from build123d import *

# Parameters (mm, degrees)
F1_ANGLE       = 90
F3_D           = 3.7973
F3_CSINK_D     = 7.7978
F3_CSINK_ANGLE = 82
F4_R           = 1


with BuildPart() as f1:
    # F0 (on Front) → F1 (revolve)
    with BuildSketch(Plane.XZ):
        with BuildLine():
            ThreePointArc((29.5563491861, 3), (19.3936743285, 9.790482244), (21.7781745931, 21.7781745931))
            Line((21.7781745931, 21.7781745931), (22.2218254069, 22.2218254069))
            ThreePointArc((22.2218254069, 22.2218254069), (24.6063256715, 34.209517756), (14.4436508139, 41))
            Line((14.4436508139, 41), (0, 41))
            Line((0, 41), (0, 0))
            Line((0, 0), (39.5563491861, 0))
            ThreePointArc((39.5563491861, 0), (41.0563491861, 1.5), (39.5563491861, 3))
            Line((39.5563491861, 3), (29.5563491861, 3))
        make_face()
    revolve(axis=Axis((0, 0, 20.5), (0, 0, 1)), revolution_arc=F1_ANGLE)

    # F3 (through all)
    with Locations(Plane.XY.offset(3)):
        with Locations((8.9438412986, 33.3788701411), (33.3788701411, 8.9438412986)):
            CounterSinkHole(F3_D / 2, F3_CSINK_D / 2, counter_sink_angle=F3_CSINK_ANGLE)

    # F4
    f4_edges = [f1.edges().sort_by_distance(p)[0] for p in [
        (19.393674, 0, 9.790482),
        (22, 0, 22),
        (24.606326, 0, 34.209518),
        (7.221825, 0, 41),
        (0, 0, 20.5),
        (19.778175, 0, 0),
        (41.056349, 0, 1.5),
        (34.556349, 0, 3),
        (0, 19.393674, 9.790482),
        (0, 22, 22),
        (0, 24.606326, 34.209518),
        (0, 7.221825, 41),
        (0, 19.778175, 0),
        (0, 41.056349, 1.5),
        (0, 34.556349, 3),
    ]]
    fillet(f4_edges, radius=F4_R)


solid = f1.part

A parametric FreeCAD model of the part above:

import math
import FreeCAD as App
import Part
import Sketcher
from FreeCAD import Vector
Q = App.Units.Quantity


def edges_at(feature, points):
    """Names of the edges that pass closest to the given points."""
    edges = feature.Shape.Edges
    near = lambda p: min(range(len(edges)), key=lambda i: edges[i].distToShape(Part.Vertex(*p))[0])
    return sorted({f"Edge{near(p) + 1}" for p in points})

doc = App.newDocument("Part")
body = doc.addObject("PartDesign::Body", "Body")

# Sketch on XZ plane
sketch1 = body.newObject("Sketcher::SketchObject", "Sketch")
sketch1.AttachmentSupport = (doc.getObject("XZ_Plane"), [""])
sketch1.MapMode = "FlatFace"
sketch1.addGeometry(Part.ArcOfCircle(Part.Circle(Vector(29.6, 14, 0), Vector(0, 0, 1), 11), math.radians(135), math.radians(270)), False)
sketch1.addGeometry(Part.LineSegment(Vector(21.8, 21.8, 0), Vector(22.2, 22.2, 0)), False)
sketch1.addGeometry(Part.ArcOfCircle(Part.Circle(Vector(14.4, 30, 0), Vector(0, 0, 1), 11), math.radians(-45), math.radians(90)), False)
sketch1.addGeometry(Part.LineSegment(Vector(14.4, 41, 0), Vector(0, 41, 0)), False)
sketch1.addGeometry(Part.LineSegment(Vector(0, 41, 0), Vector(0, 0, 0)), False)
sketch1.addGeometry(Part.LineSegment(Vector(0, 0, 0), Vector(39.6, 0, 0)), False)
sketch1.addGeometry(Part.ArcOfCircle(Part.Circle(Vector(39.6, 1.5, 0), Vector(0, 0, 1), 1.5), math.radians(-90), math.radians(90)), False)
sketch1.addGeometry(Part.LineSegment(Vector(39.6, 3, 0), Vector(29.6, 3, 0)), False)
sketch1.addConstraint(Sketcher.Constraint("Tangent", 0, 1, 1, 1))
sketch1.addConstraint(Sketcher.Constraint("Tangent", 1, 2, 2, 1))
sketch1.addConstraint(Sketcher.Constraint("Tangent", 2, 2, 3, 1))
sketch1.addConstraint(Sketcher.Constraint("Coincident", 3, 2, 4, 1))
sketch1.addConstraint(Sketcher.Constraint("Coincident", 4, 2, 5, 1))
sketch1.addConstraint(Sketcher.Constraint("Tangent", 5, 2, 6, 1))
sketch1.addConstraint(Sketcher.Constraint("Tangent", 6, 2, 7, 1))
sketch1.addConstraint(Sketcher.Constraint("Tangent", 7, 2, 0, 2))
sketch1.addConstraint(Sketcher.Constraint("Horizontal", 3))
sketch1.addConstraint(Sketcher.Constraint("Vertical", 4))
sketch1.addConstraint(Sketcher.Constraint("Horizontal", 5))
sketch1.addConstraint(Sketcher.Constraint("Horizontal", 7))
sketch1.addConstraint(Sketcher.Constraint("Coincident", 4, 2, -1, 1))
sketch1.addConstraint(Sketcher.Constraint("Equal", 0, 2))
sketch1.addConstraint(Sketcher.Constraint("Radius", 0, 11.0))
sketch1.addConstraint(Sketcher.Constraint("Radius", 6, 1.5))
sketch1.addConstraint(Sketcher.Constraint("DistanceX", 7, 2, 7, 1, 10.0))
sketch1.addConstraint(Sketcher.Constraint("DistanceY", 4, 2, 4, 1, 41.0))
sketch1.addConstraint(Sketcher.Constraint("Angle", 1, Q("45 deg")))
sketch1.addConstraint(Sketcher.Constraint("DistanceX", 3, 2, 3, 1, 14.443651))
revolution = body.newObject("PartDesign::Revolution", "Revolution")
revolution.Profile = sketch1
revolution.ReferenceAxis = (sketch1, ["V_Axis"])
revolution.Angle = 90

# Sketch on XY plane
sketch2 = body.newObject("Sketcher::SketchObject", "Sketch001")
sketch2.AttachmentSupport = (doc.getObject("XY_Plane"), [""])
sketch2.MapMode = "FlatFace"
sketch2.AttachmentOffset = App.Placement(Vector(0, 0, 3), App.Rotation())
sketch2.addGeometry(Part.Circle(Vector(8.9, 33.4, 0), Vector(0, 0, 1), 1.9), False)
sketch2.addGeometry(Part.Circle(Vector(33.4, 8.9, 0), Vector(0, 0, 1), 1.9), False)
sketch2.addConstraint(Sketcher.Constraint("Equal", 0, 1))
sketch2.addConstraint(Sketcher.Constraint("Diameter", 0, 3.7973))
sketch2.addConstraint(Sketcher.Constraint("DistanceX", -1, 1, 0, 3, 8.943841))
sketch2.addConstraint(Sketcher.Constraint("DistanceY", -1, 1, 0, 3, 33.37887))
sketch2.addConstraint(Sketcher.Constraint("DistanceX", -1, 1, 1, 3, 33.37887))
sketch2.addConstraint(Sketcher.Constraint("DistanceY", -1, 1, 1, 3, 8.943841))
doc.recompute()
hole = body.newObject("PartDesign::Hole", "Hole")
hole.Profile = sketch2
hole.ThreadType = "None"
hole.Diameter = 3.7973
hole.DepthType = "ThroughAll"
hole.HoleCutType = "Countersink"
hole.HoleCutDiameter = 7.7978
hole.HoleCutCountersinkAngle = 82
doc.recompute()

fillet = body.newObject("PartDesign::Fillet", "Fillet")
fillet.Base = (hole, edges_at(hole, [
    (19.394, 0, 9.79),
    (22, 0, 22),
    (24.606, 0, 34.21),
    (7.222, 0, 41),
    (0, 0, 20.5),
    (19.778, 0, 0),
    (41.056, 0, 1.5),
    (34.556, 0, 3),
    (0, 19.394, 9.79),
    (0, 22, 22),
    (0, 24.606, 34.21),
    (0, 7.222, 41),
    (0, 19.778, 0),
    (0, 41.056, 1.5),
    (0, 34.556, 3),
]))
fillet.Radius = 1

doc.recompute()
